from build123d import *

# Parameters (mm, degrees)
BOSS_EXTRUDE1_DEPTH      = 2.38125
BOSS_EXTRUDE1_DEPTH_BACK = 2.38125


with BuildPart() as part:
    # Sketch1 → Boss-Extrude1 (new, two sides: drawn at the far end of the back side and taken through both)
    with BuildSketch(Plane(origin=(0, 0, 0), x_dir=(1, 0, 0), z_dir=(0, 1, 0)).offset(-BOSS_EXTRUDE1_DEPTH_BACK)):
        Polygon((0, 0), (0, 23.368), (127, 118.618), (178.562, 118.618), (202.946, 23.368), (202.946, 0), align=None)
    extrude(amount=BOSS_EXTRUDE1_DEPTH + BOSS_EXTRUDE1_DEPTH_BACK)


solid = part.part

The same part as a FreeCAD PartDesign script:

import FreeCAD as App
import Part
import Sketcher
from FreeCAD import Vector
Q = App.Units.Quantity


def add_polygon(sketch, points):
    """Adds a closed chain of lines whose ends are joined by coincident constraints."""
    first, n = sketch.GeometryCount, len(points)
    for a, b in zip(points, points[1:] + points[:1]):
        sketch.addGeometry(Part.LineSegment(App.Vector(*a, 0), App.Vector(*b, 0)), False)
    for i in range(n):
        sketch.addConstraint(Sketcher.Constraint("Coincident", first + i, 2, first + (i + 1) % n, 1))

doc = App.newDocument("Part")
body = doc.addObject("PartDesign::Body", "Body")

sketch1 = body.newObject("Sketcher::SketchObject", "Sketch")
sketch1.AttachmentSupport = (doc.getObject("XZ_Plane"), [""])
sketch1.MapMode = "FlatFace"
add_polygon(sketch1, [(0, -23), (0, 0), (203, 0), (203, -23), (179, -119), (127, -119)])
sketch1.addConstraint([
    Sketcher.Constraint("Vertical", 0),
    Sketcher.Constraint("Horizontal", 1),
    Sketcher.Constraint("Vertical", 2),
    Sketcher.Constraint("Horizontal", 4),
    Sketcher.Constraint("Coincident", 0, 2, -1, 1),
    Sketcher.Constraint("Horizontal", 2, 2, 5, 2),
    Sketcher.Constraint("DistanceX", -1, 1, 4, 2, Q("5 in")),
    Sketcher.Constraint("DistanceX", 1, 1, 1, 2, Q("7.99 in")),
    Sketcher.Constraint("DistanceX", 4, 2, 4, 1, Q("2.03 in")),
    Sketcher.Constraint("DistanceY", 0, 1, 0, 2, Q("0.92 in")),
    Sketcher.Constraint("Distance", 5, Q("6.25 in")),
])
pad1 = body.newObject("PartDesign::Pad", "Pad")
pad1.Profile = sketch1
pad1.Type = "TwoLengths"
pad1.Length = Q("0.09375 in")
pad1.Length2 = Q("0.09375 in")
pad1.Reversed = True

doc.recompute()
